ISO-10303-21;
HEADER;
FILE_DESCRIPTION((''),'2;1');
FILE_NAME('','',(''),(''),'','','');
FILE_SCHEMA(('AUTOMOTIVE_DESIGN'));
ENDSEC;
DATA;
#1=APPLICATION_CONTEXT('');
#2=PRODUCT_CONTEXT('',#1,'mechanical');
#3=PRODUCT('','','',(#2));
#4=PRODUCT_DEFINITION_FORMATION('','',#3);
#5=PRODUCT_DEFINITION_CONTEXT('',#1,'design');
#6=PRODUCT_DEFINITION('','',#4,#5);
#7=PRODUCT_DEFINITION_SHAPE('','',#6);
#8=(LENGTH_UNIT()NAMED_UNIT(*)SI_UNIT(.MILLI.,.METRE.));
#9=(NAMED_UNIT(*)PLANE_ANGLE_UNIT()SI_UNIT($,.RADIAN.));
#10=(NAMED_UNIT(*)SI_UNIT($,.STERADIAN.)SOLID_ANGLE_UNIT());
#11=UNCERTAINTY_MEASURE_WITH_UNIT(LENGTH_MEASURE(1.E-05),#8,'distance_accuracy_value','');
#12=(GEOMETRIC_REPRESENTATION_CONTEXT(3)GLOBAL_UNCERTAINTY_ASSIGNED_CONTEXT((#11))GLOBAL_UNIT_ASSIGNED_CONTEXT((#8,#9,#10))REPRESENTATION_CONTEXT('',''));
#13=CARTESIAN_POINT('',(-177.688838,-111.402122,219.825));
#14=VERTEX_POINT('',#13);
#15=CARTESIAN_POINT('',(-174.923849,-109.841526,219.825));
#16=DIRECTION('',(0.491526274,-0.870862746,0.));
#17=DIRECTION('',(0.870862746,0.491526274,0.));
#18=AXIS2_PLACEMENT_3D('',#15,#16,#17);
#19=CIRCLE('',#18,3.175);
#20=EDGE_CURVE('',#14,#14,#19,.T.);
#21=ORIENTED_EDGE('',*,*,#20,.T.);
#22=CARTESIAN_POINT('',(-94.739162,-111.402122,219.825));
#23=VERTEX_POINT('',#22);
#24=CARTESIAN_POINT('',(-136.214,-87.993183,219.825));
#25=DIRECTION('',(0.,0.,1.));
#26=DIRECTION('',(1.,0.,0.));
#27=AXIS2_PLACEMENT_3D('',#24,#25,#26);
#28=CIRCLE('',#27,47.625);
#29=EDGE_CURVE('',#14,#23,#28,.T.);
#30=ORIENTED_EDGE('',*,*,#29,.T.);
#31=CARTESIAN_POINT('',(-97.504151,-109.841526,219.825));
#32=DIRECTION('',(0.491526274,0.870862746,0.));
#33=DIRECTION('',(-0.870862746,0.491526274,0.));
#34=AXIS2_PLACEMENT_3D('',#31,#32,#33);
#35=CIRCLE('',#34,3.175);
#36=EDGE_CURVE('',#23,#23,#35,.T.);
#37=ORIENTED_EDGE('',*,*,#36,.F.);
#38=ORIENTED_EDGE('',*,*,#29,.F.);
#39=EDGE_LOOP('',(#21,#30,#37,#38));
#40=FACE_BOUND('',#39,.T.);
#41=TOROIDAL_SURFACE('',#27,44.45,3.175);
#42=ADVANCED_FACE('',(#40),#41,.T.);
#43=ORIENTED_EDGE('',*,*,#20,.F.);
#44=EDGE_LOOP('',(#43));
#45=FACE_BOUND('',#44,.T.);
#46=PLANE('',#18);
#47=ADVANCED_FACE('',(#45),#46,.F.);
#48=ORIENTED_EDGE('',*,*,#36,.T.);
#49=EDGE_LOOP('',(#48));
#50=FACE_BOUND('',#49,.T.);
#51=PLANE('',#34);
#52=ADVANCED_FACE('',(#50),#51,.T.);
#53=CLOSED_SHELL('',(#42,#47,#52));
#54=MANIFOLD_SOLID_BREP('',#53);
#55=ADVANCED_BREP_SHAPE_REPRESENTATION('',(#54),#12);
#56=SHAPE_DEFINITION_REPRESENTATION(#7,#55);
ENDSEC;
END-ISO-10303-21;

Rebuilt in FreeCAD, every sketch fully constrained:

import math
import FreeCAD as App
import Part
import Sketcher
from FreeCAD import Vector
Q = App.Units.Quantity

doc = App.newDocument("Part")
body = doc.addObject("PartDesign::Body", "Body")

# Sketch on an angled plane
sketch1 = body.newObject("Sketcher::SketchObject", "Sketch")
sketch1.Placement = App.Placement(Vector(-174.923849, -109.841526, 219.825), App.Rotation(Vector(-0.870862746, -0.491526274, 0), Vector(0, 0, -1), Vector(0.491526274, -0.870862746, 0), "ZXY"))
sketch1.addGeometry(Part.Circle(Vector(0, 0, 0), Vector(0, 0, 1), 3.175), False)
sketch1.addConstraint([
    Sketcher.Constraint("Coincident", 0, 3, -1, 1),
    Sketcher.Constraint("Diameter", 0, Q("0.25 in")),
])

# Sketch on XY plane
sketch2 = body.newObject("Sketcher::SketchObject", "Sketch001")
sketch2.AttachmentSupport = (doc.getObject("XY_Plane"), [""])
sketch2.MapMode = "FlatFace"
sketch2.AttachmentOffset = App.Placement(Vector(0, 0, 219.825), App.Rotation())
sketch2.addGeometry(Part.ArcOfCircle(Part.Circle(Vector(-136.214, -87.993183, 0), Vector(0, 0, 1), 44.45), math.radians(-150.559051), math.radians(-29.440949)), False)
sketch2.addConstraint([
    Sketcher.Constraint("Radius", 0, Q("1.75 in")),
    Sketcher.Constraint("DistanceX", 0, 3, -1, 1, 136.214),
    Sketcher.Constraint("DistanceX", 0, 1, 0, 2, 77.419698),
    Sketcher.Constraint("DistanceX", 0, 1, -1, 1, 174.923849),
    Sketcher.Constraint("DistanceY", 0, 3, -1, 1, 87.993183),
])
doc.recompute()

additivepipe = body.newObject("PartDesign::AdditivePipe", "AdditivePipe")
additivepipe.Profile = sketch1
additivepipe.Spine = (sketch2, ["Edge1"])

doc.recompute()
